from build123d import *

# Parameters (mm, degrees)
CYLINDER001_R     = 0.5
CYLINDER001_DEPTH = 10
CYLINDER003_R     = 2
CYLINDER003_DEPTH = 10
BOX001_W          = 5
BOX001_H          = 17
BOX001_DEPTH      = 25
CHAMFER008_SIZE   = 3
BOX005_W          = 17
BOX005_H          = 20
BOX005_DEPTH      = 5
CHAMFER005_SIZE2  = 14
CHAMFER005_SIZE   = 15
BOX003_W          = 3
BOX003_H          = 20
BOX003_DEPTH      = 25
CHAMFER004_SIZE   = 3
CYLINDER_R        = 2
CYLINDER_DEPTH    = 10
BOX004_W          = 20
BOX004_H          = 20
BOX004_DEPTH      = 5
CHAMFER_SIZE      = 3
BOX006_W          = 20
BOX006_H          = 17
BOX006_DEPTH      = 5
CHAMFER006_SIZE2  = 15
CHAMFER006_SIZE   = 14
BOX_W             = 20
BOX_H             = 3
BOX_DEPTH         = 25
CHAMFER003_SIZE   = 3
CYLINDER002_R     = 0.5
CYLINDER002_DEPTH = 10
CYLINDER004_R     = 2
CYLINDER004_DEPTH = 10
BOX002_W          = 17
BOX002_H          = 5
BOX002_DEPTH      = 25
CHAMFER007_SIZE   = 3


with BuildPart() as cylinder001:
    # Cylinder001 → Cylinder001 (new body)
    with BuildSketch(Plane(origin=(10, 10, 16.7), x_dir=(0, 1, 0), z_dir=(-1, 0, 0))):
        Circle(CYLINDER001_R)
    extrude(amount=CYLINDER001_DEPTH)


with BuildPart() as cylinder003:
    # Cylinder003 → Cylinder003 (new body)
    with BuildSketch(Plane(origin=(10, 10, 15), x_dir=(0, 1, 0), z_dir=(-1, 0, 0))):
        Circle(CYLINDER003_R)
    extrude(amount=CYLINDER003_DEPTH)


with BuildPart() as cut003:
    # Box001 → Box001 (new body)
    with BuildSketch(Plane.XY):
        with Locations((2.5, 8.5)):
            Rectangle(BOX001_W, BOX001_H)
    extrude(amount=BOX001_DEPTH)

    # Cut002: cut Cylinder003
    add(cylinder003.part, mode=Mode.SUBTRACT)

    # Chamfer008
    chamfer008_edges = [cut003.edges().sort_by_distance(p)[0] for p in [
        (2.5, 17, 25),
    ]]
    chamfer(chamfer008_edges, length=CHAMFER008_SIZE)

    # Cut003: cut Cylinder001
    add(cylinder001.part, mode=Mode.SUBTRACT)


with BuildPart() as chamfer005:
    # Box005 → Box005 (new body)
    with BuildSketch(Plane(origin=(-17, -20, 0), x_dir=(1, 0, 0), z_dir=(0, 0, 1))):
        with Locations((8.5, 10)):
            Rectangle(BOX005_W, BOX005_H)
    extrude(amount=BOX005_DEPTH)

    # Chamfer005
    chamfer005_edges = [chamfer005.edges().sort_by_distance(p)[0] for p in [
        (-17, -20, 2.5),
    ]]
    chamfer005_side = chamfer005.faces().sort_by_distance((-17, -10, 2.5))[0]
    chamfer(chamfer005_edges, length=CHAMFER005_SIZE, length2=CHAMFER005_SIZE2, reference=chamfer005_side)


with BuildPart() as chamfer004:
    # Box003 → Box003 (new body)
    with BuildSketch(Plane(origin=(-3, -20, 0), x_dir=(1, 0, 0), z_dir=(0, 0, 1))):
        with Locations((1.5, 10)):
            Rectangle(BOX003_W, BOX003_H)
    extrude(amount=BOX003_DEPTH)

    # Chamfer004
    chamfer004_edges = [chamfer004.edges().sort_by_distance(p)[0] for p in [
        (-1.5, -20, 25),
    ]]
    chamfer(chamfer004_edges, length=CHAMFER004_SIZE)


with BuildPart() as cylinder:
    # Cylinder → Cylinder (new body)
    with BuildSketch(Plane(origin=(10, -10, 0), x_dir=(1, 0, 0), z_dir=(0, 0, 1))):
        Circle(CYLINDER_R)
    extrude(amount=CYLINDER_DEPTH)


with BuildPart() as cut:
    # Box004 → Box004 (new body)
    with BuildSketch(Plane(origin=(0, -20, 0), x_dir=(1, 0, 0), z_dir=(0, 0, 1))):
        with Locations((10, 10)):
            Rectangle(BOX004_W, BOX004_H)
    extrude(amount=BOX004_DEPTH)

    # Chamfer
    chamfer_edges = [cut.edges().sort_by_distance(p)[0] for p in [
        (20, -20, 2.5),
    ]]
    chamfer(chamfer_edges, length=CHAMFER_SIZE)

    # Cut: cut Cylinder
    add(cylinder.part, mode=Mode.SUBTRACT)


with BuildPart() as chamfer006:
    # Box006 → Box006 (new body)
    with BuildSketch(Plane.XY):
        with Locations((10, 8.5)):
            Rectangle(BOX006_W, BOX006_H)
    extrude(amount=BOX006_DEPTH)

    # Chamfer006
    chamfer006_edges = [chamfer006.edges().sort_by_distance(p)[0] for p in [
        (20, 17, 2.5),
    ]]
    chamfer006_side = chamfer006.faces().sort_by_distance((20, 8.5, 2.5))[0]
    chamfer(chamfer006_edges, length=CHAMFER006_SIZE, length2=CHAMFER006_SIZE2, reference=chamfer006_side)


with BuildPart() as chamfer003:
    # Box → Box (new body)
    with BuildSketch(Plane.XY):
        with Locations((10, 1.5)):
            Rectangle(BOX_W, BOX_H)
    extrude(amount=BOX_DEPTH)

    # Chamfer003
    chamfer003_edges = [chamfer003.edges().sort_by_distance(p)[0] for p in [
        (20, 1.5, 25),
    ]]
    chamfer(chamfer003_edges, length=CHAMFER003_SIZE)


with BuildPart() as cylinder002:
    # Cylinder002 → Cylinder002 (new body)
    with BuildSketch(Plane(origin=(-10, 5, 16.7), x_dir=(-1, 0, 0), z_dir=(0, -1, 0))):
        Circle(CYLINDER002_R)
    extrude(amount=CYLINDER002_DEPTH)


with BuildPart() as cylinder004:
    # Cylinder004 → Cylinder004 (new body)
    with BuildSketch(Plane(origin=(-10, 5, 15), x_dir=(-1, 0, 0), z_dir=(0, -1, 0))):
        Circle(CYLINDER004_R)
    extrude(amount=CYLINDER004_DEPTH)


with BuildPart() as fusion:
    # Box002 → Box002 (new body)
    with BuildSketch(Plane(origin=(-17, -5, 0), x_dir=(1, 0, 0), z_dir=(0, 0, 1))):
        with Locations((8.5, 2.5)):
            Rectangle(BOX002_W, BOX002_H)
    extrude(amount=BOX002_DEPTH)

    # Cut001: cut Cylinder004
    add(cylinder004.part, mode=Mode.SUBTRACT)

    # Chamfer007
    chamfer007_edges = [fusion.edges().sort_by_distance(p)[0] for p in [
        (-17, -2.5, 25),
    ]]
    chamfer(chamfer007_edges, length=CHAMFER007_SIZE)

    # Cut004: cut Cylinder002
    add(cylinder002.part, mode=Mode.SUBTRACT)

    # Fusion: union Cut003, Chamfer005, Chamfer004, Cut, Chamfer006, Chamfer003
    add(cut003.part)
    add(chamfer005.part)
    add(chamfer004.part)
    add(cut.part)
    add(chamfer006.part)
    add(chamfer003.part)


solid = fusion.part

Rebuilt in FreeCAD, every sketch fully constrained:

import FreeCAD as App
import Part
import Sketcher
from FreeCAD import Vector


def edges_at(feature, points):
    """Names of the edges that pass closest to the given points."""
    edges = feature.Shape.Edges
    near = lambda p: min(range(len(edges)), key=lambda i: edges[i].distToShape(Part.Vertex(*p))[0])
    return sorted({f"Edge{near(p) + 1}" for p in points})

doc = App.newDocument("Part")
body = doc.addObject("PartDesign::Body", "Body")

# Sketch on YZ plane
sketch1 = body.newObject("Sketcher::SketchObject", "Sketch")
sketch1.AttachmentSupport = (doc.getObject("YZ_Plane"), [""])
sketch1.MapMode = "FlatFace"
sketch1.AttachmentOffset = App.Placement(Vector(0, 0, 10), App.Rotation())
sketch1.addGeometry(Part.Circle(Vector(10, 16.7, 0), Vector(0, 0, 1), 0.5), False)
sketch1.addConstraint(Sketcher.Constraint("Diameter", 0, 1.0))
sketch1.addConstraint(Sketcher.Constraint("DistanceX", -1, 1, 0, 3, 10.0))
sketch1.addConstraint(Sketcher.Constraint("DistanceY", -1, 1, 0, 3, 16.7))
pad1 = body.newObject("PartDesign::Pad", "Pad")
pad1.Profile = sketch1
pad1.Length = 10
pad1.Reversed = True
body2 = doc.addObject("PartDesign::Body", "Body001")

# Sketch on YZ plane
sketch2 = body2.newObject("Sketcher::SketchObject", "Sketch001")
sketch2.AttachmentSupport = (doc.getObject("YZ_Plane001"), [""])
sketch2.MapMode = "FlatFace"
sketch2.AttachmentOffset = App.Placement(Vector(0, 0, 10), App.Rotation())
sketch2.addGeometry(Part.Circle(Vector(10, 15, 0), Vector(0, 0, 1), 2), False)
sketch2.addConstraint(Sketcher.Constraint("Diameter", 0, 4.0))
sketch2.addConstraint(Sketcher.Constraint("DistanceX", -1, 1, 0, 3, 10.0))
sketch2.addConstraint(Sketcher.Constraint("DistanceY", -1, 1, 0, 3, 15.0))
pad2 = body2.newObject("PartDesign::Pad", "Pad001")
pad2.Profile = sketch2
pad2.Length = 10
pad2.Reversed = True
body3 = doc.addObject("PartDesign::Body", "Body002")

# Sketch on XY plane
sketch3 = body3.newObject("Sketcher::SketchObject", "Sketch002")
sketch3.AttachmentSupport = (doc.getObject("XY_Plane002"), [""])
sketch3.MapMode = "FlatFace"
sketch3.addGeometry(Part.LineSegment(Vector(0, 17, 0), Vector(0, 0, 0)), False)
sketch3.addGeometry(Part.LineSegment(Vector(0, 0, 0), Vector(5, 0, 0)), False)
sketch3.addGeometry(Part.LineSegment(Vector(5, 0, 0), Vector(5, 17, 0)), False)
sketch3.addGeometry(Part.LineSegment(Vector(5, 17, 0), Vector(0, 17, 0)), False)
sketch3.addConstraint(Sketcher.Constraint("Coincident", 0, 2, 1, 1))
sketch3.addConstraint(Sketcher.Constraint("Coincident", 1, 2, 2, 1))
sketch3.addConstraint(Sketcher.Constraint("Coincident", 2, 2, 3, 1))
sketch3.addConstraint(Sketcher.Constraint("Coincident", 3, 2, 0, 1))
sketch3.addConstraint(Sketcher.Constraint("Vertical", 0))
sketch3.addConstraint(Sketcher.Constraint("Horizontal", 1))
sketch3.addConstraint(Sketcher.Constraint("Vertical", 2))
sketch3.addConstraint(Sketcher.Constraint("Horizontal", 3))
sketch3.addConstraint(Sketcher.Constraint("Coincident", 0, 2, -1, 1))
sketch3.addConstraint(Sketcher.Constraint("DistanceX", 1, 1, 1, 2, 5.0))
sketch3.addConstraint(Sketcher.Constraint("DistanceY", 0, 2, 0, 1, 17.0))
pad3 = body3.newObject("PartDesign::Pad", "Pad002")
pad3.Profile = sketch3
pad3.Length = 25
doc.recompute()

boolean = body3.newObject("PartDesign::Boolean", "Boolean")
boolean.Type = "Cut"
boolean.addObjects([body2])
doc.recompute()

chamfer = body3.newObject("PartDesign::Chamfer", "Chamfer")
chamfer.Base = (boolean, edges_at(boolean, [(2.5, 17, 25)]))
chamfer.Size = 3
doc.recompute()

boolean2 = body3.newObject("PartDesign::Boolean", "Boolean001")
boolean2.Type = "Cut"
boolean2.addObjects([body])
body4 = doc.addObject("PartDesign::Body", "Body003")

# Sketch on XY plane
sketch4 = body4.newObject("Sketcher::SketchObject", "Sketch003")
sketch4.AttachmentSupport = (doc.getObject("XY_Plane003"), [""])
sketch4.MapMode = "FlatFace"
sketch4.addGeometry(Part.LineSegment(Vector(-17, 0, 0), Vector(-17, -20, 0)), False)
sketch4.addGeometry(Part.LineSegment(Vector(-17, -20, 0), Vector(0, -20, 0)), False)
sketch4.addGeometry(Part.LineSegment(Vector(0, -20, 0), Vector(0, 0, 0)), False)
sketch4.addGeometry(Part.LineSegment(Vector(0, 0, 0), Vector(-17, 0, 0)), False)
sketch4.addConstraint(Sketcher.Constraint("Coincident", 0, 2, 1, 1))
sketch4.addConstraint(Sketcher.Constraint("Coincident", 1, 2, 2, 1))
sketch4.addConstraint(Sketcher.Constraint("Coincident", 2, 2, 3, 1))
sketch4.addConstraint(Sketcher.Constraint("Coincident", 3, 2, 0, 1))
sketch4.addConstraint(Sketcher.Constraint("Vertical", 0))
sketch4.addConstraint(Sketcher.Constraint("Horizontal", 1))
sketch4.addConstraint(Sketcher.Constraint("Vertical", 2))
sketch4.addConstraint(Sketcher.Constraint("Horizontal", 3))
sketch4.addConstraint(Sketcher.Constraint("Coincident", 2, 2, -1, 1))
sketch4.addConstraint(Sketcher.Constraint("DistanceX", 1, 1, 1, 2, 17.0))
sketch4.addConstraint(Sketcher.Constraint("DistanceY", 0, 2, 0, 1, 20.0))
pad4 = body4.newObject("PartDesign::Pad", "Pad003")
pad4.Profile = sketch4
pad4.Length = 5
doc.recompute()

chamfer2 = body4.newObject("PartDesign::Chamfer", "Chamfer001")
chamfer2.Base = (pad4, edges_at(pad4, [(-17, -20, 2.5)]))
chamfer2.ChamferType = "Two distances"
chamfer2.Size = 15
chamfer2.Size2 = 14
body5 = doc.addObject("PartDesign::Body", "Body004")

# Sketch on XY plane
sketch5 = body5.newObject("Sketcher::SketchObject", "Sketch004")
sketch5.AttachmentSupport = (doc.getObject("XY_Plane004"), [""])
sketch5.MapMode = "FlatFace"
sketch5.addGeometry(Part.LineSegment(Vector(-3, 0, 0), Vector(-3, -20, 0)), False)
sketch5.addGeometry(Part.LineSegment(Vector(-3, -20, 0), Vector(0, -20, 0)), False)
sketch5.addGeometry(Part.LineSegment(Vector(0, -20, 0), Vector(0, 0, 0)), False)
sketch5.addGeometry(Part.LineSegment(Vector(0, 0, 0), Vector(-3, 0, 0)), False)
sketch5.addConstraint(Sketcher.Constraint("Coincident", 0, 2, 1, 1))
sketch5.addConstraint(Sketcher.Constraint("Coincident", 1, 2, 2, 1))
sketch5.addConstraint(Sketcher.Constraint("Coincident", 2, 2, 3, 1))
sketch5.addConstraint(Sketcher.Constraint("Coincident", 3, 2, 0, 1))
sketch5.addConstraint(Sketcher.Constraint("Vertical", 0))
sketch5.addConstraint(Sketcher.Constraint("Horizontal", 1))
sketch5.addConstraint(Sketcher.Constraint("Vertical", 2))
sketch5.addConstraint(Sketcher.Constraint("Horizontal", 3))
sketch5.addConstraint(Sketcher.Constraint("Coincident", 2, 2, -1, 1))
sketch5.addConstraint(Sketcher.Constraint("DistanceX", 1, 1, 1, 2, 3.0))
sketch5.addConstraint(Sketcher.Constraint("DistanceY", 0, 2, 0, 1, 20.0))
pad5 = body5.newObject("PartDesign::Pad", "Pad004")
pad5.Profile = sketch5
pad5.Length = 25
doc.recompute()

chamfer3 = body5.newObject("PartDesign::Chamfer", "Chamfer002")
chamfer3.Base = (pad5, edges_at(pad5, [(-1.5, -20, 25)]))
chamfer3.Size = 3
body6 = doc.addObject("PartDesign::Body", "Body005")

# Sketch on XY plane
sketch6 = body6.newObject("Sketcher::SketchObject", "Sketch005")
sketch6.AttachmentSupport = (doc.getObject("XY_Plane005"), [""])
sketch6.MapMode = "FlatFace"
sketch6.addGeometry(Part.Circle(Vector(10, -10, 0), Vector(0, 0, 1), 2), False)
sketch6.addConstraint(Sketcher.Constraint("Diameter", 0, 4.0))
sketch6.addConstraint(Sketcher.Constraint("DistanceX", -1, 1, 0, 3, 10.0))
sketch6.addConstraint(Sketcher.Constraint("DistanceY", 0, 3, -1, 1, 10.0))
pad6 = body6.newObject("PartDesign::Pad", "Pad005")
pad6.Profile = sketch6
pad6.Length = 10
body7 = doc.addObject("PartDesign::Body", "Body006")

# Sketch on XY plane
sketch7 = body7.newObject("Sketcher::SketchObject", "Sketch006")
sketch7.AttachmentSupport = (doc.getObject("XY_Plane006"), [""])
sketch7.MapMode = "FlatFace"
sketch7.addGeometry(Part.LineSegment(Vector(0, 0, 0), Vector(0, -20, 0)), False)
sketch7.addGeometry(Part.LineSegment(Vector(0, -20, 0), Vector(20, -20, 0)), False)
sketch7.addGeometry(Part.LineSegment(Vector(20, -20, 0), Vector(20, 0, 0)), False)
sketch7.addGeometry(Part.LineSegment(Vector(20, 0, 0), Vector(0, 0, 0)), False)
sketch7.addConstraint(Sketcher.Constraint("Coincident", 0, 2, 1, 1))
sketch7.addConstraint(Sketcher.Constraint("Coincident", 1, 2, 2, 1))
sketch7.addConstraint(Sketcher.Constraint("Coincident", 2, 2, 3, 1))
sketch7.addConstraint(Sketcher.Constraint("Coincident", 3, 2, 0, 1))
sketch7.addConstraint(Sketcher.Constraint("Vertical", 0))
sketch7.addConstraint(Sketcher.Constraint("Horizontal", 1))
sketch7.addConstraint(Sketcher.Constraint("Vertical", 2))
sketch7.addConstraint(Sketcher.Constraint("Horizontal", 3))
sketch7.addConstraint(Sketcher.Constraint("Coincident", 3, 2, -1, 1))
sketch7.addConstraint(Sketcher.Constraint("Equal", 3, 0))
sketch7.addConstraint(Sketcher.Constraint("DistanceX", 1, 1, 1, 2, 20.0))
pad7 = body7.newObject("PartDesign::Pad", "Pad006")
pad7.Profile = sketch7
pad7.Length = 5
doc.recompute()

chamfer4 = body7.newObject("PartDesign::Chamfer", "Chamfer003")
chamfer4.Base = (pad7, edges_at(pad7, [(20, -20, 2.5)]))
chamfer4.Size = 3
doc.recompute()

boolean3 = body7.newObject("PartDesign::Boolean", "Boolean002")
boolean3.Type = "Cut"
boolean3.addObjects([body6])
body8 = doc.addObject("PartDesign::Body", "Body007")

# Sketch on XY plane
sketch8 = body8.newObject("Sketcher::SketchObject", "Sketch007")
sketch8.AttachmentSupport = (doc.getObject("XY_Plane007"), [""])
sketch8.MapMode = "FlatFace"
sketch8.addGeometry(Part.LineSegment(Vector(0, 17, 0), Vector(0, 0, 0)), False)
sketch8.addGeometry(Part.LineSegment(Vector(0, 0, 0), Vector(20, 0, 0)), False)
sketch8.addGeometry(Part.LineSegment(Vector(20, 0, 0), Vector(20, 17, 0)), False)
sketch8.addGeometry(Part.LineSegment(Vector(20, 17, 0), Vector(0, 17, 0)), False)
sketch8.addConstraint(Sketcher.Constraint("Coincident", 0, 2, 1, 1))
sketch8.addConstraint(Sketcher.Constraint("Coincident", 1, 2, 2, 1))
sketch8.addConstraint(Sketcher.Constraint("Coincident", 2, 2, 3, 1))
sketch8.addConstraint(Sketcher.Constraint("Coincident", 3, 2, 0, 1))
sketch8.addConstraint(Sketcher.Constraint("Vertical", 0))
sketch8.addConstraint(Sketcher.Constraint("Horizontal", 1))
sketch8.addConstraint(Sketcher.Constraint("Vertical", 2))
sketch8.addConstraint(Sketcher.Constraint("Horizontal", 3))
sketch8.addConstraint(Sketcher.Constraint("Coincident", 0, 2, -1, 1))
sketch8.addConstraint(Sketcher.Constraint("DistanceX", 1, 1, 1, 2, 20.0))
sketch8.addConstraint(Sketcher.Constraint("DistanceY", 0, 2, 0, 1, 17.0))
pad8 = body8.newObject("PartDesign::Pad", "Pad007")
pad8.Profile = sketch8
pad8.Length = 5
doc.recompute()

chamfer5 = body8.newObject("PartDesign::Chamfer", "Chamfer004")
chamfer5.Base = (pad8, edges_at(pad8, [(20, 17, 2.5)]))
chamfer5.ChamferType = "Two distances"
chamfer5.Size = 14
chamfer5.Size2 = 15
body9 = doc.addObject("PartDesign::Body", "Body008")

# Sketch on XY plane
sketch9 = body9.newObject("Sketcher::SketchObject", "Sketch008")
sketch9.AttachmentSupport = (doc.getObject("XY_Plane008"), [""])
sketch9.MapMode = "FlatFace"
sketch9.addGeometry(Part.LineSegment(Vector(0, 3, 0), Vector(0, 0, 0)), False)
sketch9.addGeometry(Part.LineSegment(Vector(0, 0, 0), Vector(20, 0, 0)), False)
sketch9.addGeometry(Part.LineSegment(Vector(20, 0, 0), Vector(20, 3, 0)), False)
sketch9.addGeometry(Part.LineSegment(Vector(20, 3, 0), Vector(0, 3, 0)), False)
sketch9.addConstraint(Sketcher.Constraint("Coincident", 0, 2, 1, 1))
sketch9.addConstraint(Sketcher.Constraint("Coincident", 1, 2, 2, 1))
sketch9.addConstraint(Sketcher.Constraint("Coincident", 2, 2, 3, 1))
sketch9.addConstraint(Sketcher.Constraint("Coincident", 3, 2, 0, 1))
sketch9.addConstraint(Sketcher.Constraint("Vertical", 0))
sketch9.addConstraint(Sketcher.Constraint("Horizontal", 1))
sketch9.addConstraint(Sketcher.Constraint("Vertical", 2))
sketch9.addConstraint(Sketcher.Constraint("Horizontal", 3))
sketch9.addConstraint(Sketcher.Constraint("Coincident", 0, 2, -1, 1))
sketch9.addConstraint(Sketcher.Constraint("DistanceX", 1, 1, 1, 2, 20.0))
sketch9.addConstraint(Sketcher.Constraint("DistanceY", 0, 2, 0, 1, 3.0))
pad9 = body9.newObject("PartDesign::Pad", "Pad008")
pad9.Profile = sketch9
pad9.Length = 25
doc.recompute()

chamfer6 = body9.newObject("PartDesign::Chamfer", "Chamfer005")
chamfer6.Base = (pad9, edges_at(pad9, [(20, 1.5, 25)]))
chamfer6.Size = 3
body10 = doc.addObject("PartDesign::Body", "Body009")

# Sketch on XZ plane
sketch10 = body10.newObject("Sketcher::SketchObject", "Sketch009")
sketch10.AttachmentSupport = (doc.getObject("XZ_Plane009"), [""])
sketch10.MapMode = "FlatFace"
sketch10.AttachmentOffset = App.Placement(Vector(0, 0, -5), App.Rotation())
sketch10.addGeometry(Part.Circle(Vector(-10, 16.7, 0), Vector(0, 0, 1), 0.5), False)
sketch10.addConstraint(Sketcher.Constraint("Diameter", 0, 1.0))
sketch10.addConstraint(Sketcher.Constraint("DistanceX", 0, 3, -1, 1, 10.0))
sketch10.addConstraint(Sketcher.Constraint("DistanceY", -1, 1, 0, 3, 16.7))
pad10 = body10.newObject("PartDesign::Pad", "Pad009")
pad10.Profile = sketch10
pad10.Length = 10
body11 = doc.addObject("PartDesign::Body", "Body010")

# Sketch on XZ plane
sketch11 = body11.newObject("Sketcher::SketchObject", "Sketch010")
sketch11.AttachmentSupport = (doc.getObject("XZ_Plane010"), [""])
sketch11.MapMode = "FlatFace"
sketch11.AttachmentOffset = App.Placement(Vector(0, 0, -5), App.Rotation())
sketch11.addGeometry(Part.Circle(Vector(-10, 15, 0), Vector(0, 0, 1), 2), False)
sketch11.addConstraint(Sketcher.Constraint("Diameter", 0, 4.0))
sketch11.addConstraint(Sketcher.Constraint("DistanceX", 0, 3, -1, 1, 10.0))
sketch11.addConstraint(Sketcher.Constraint("DistanceY", -1, 1, 0, 3, 15.0))
pad11 = body11.newObject("PartDesign::Pad", "Pad010")
pad11.Profile = sketch11
pad11.Length = 10
body12 = doc.addObject("PartDesign::Body", "Body011")
body12.AllowCompound = True

# Sketch on XY plane
sketch12 = body12.newObject("Sketcher::SketchObject", "Sketch011")
sketch12.AttachmentSupport = (doc.getObject("XY_Plane011"), [""])
sketch12.MapMode = "FlatFace"
sketch12.addGeometry(Part.LineSegment(Vector(-17, 0, 0), Vector(-17, -5, 0)), False)
sketch12.addGeometry(Part.LineSegment(Vector(-17, -5, 0), Vector(0, -5, 0)), False)
sketch12.addGeometry(Part.LineSegment(Vector(0, -5, 0), Vector(0, 0, 0)), False)
sketch12.addGeometry(Part.LineSegment(Vector(0, 0, 0), Vector(-17, 0, 0)), False)
sketch12.addConstraint(Sketcher.Constraint("Coincident", 0, 2, 1, 1))
sketch12.addConstraint(Sketcher.Constraint("Coincident", 1, 2, 2, 1))
sketch12.addConstraint(Sketcher.Constraint("Coincident", 2, 2, 3, 1))
sketch12.addConstraint(Sketcher.Constraint("Coincident", 3, 2, 0, 1))
sketch12.addConstraint(Sketcher.Constraint("Vertical", 0))
sketch12.addConstraint(Sketcher.Constraint("Horizontal", 1))
sketch12.addConstraint(Sketcher.Constraint("Vertical", 2))
sketch12.addConstraint(Sketcher.Constraint("Horizontal", 3))
sketch12.addConstraint(Sketcher.Constraint("Coincident", 2, 2, -1, 1))
sketch12.addConstraint(Sketcher.Constraint("DistanceX", 1, 1, 1, 2, 17.0))
sketch12.addConstraint(Sketcher.Constraint("DistanceY", 0, 2, 0, 1, 5.0))
pad12 = body12.newObject("PartDesign::Pad", "Pad011")
pad12.Profile = sketch12
pad12.Length = 25
doc.recompute()

boolean4 = body12.newObject("PartDesign::Boolean", "Boolean003")
boolean4.Type = "Cut"
boolean4.addObjects([body11])
doc.recompute()

chamfer7 = body12.newObject("PartDesign::Chamfer", "Chamfer006")
chamfer7.Base = (boolean4, edges_at(boolean4, [(-17, -2.5, 25)]))
chamfer7.Size = 3
doc.recompute()

boolean5 = body12.newObject("PartDesign::Boolean", "Boolean004")
boolean5.Type = "Cut"
boolean5.addObjects([body10])
doc.recompute()

boolean6 = body12.newObject("PartDesign::Boolean", "Boolean005")
boolean6.Type = "Fuse"
boolean6.addObjects([body3])
doc.recompute()

boolean7 = body12.newObject("PartDesign::Boolean", "Boolean006")
boolean7.Type = "Fuse"
boolean7.addObjects([body4])
doc.recompute()

boolean8 = body12.newObject("PartDesign::Boolean", "Boolean007")
boolean8.Type = "Fuse"
boolean8.addObjects([body5])
doc.recompute()

boolean9 = body12.newObject("PartDesign::Boolean", "Boolean008")
boolean9.Type = "Fuse"
boolean9.addObjects([body7])
doc.recompute()

boolean10 = body12.newObject("PartDesign::Boolean", "Boolean009")
boolean10.Type = "Fuse"
boolean10.addObjects([body8])
doc.recompute()

boolean11 = body12.newObject("PartDesign::Boolean", "Boolean010")
boolean11.Type = "Fuse"
boolean11.addObjects([body9])

doc.recompute()
